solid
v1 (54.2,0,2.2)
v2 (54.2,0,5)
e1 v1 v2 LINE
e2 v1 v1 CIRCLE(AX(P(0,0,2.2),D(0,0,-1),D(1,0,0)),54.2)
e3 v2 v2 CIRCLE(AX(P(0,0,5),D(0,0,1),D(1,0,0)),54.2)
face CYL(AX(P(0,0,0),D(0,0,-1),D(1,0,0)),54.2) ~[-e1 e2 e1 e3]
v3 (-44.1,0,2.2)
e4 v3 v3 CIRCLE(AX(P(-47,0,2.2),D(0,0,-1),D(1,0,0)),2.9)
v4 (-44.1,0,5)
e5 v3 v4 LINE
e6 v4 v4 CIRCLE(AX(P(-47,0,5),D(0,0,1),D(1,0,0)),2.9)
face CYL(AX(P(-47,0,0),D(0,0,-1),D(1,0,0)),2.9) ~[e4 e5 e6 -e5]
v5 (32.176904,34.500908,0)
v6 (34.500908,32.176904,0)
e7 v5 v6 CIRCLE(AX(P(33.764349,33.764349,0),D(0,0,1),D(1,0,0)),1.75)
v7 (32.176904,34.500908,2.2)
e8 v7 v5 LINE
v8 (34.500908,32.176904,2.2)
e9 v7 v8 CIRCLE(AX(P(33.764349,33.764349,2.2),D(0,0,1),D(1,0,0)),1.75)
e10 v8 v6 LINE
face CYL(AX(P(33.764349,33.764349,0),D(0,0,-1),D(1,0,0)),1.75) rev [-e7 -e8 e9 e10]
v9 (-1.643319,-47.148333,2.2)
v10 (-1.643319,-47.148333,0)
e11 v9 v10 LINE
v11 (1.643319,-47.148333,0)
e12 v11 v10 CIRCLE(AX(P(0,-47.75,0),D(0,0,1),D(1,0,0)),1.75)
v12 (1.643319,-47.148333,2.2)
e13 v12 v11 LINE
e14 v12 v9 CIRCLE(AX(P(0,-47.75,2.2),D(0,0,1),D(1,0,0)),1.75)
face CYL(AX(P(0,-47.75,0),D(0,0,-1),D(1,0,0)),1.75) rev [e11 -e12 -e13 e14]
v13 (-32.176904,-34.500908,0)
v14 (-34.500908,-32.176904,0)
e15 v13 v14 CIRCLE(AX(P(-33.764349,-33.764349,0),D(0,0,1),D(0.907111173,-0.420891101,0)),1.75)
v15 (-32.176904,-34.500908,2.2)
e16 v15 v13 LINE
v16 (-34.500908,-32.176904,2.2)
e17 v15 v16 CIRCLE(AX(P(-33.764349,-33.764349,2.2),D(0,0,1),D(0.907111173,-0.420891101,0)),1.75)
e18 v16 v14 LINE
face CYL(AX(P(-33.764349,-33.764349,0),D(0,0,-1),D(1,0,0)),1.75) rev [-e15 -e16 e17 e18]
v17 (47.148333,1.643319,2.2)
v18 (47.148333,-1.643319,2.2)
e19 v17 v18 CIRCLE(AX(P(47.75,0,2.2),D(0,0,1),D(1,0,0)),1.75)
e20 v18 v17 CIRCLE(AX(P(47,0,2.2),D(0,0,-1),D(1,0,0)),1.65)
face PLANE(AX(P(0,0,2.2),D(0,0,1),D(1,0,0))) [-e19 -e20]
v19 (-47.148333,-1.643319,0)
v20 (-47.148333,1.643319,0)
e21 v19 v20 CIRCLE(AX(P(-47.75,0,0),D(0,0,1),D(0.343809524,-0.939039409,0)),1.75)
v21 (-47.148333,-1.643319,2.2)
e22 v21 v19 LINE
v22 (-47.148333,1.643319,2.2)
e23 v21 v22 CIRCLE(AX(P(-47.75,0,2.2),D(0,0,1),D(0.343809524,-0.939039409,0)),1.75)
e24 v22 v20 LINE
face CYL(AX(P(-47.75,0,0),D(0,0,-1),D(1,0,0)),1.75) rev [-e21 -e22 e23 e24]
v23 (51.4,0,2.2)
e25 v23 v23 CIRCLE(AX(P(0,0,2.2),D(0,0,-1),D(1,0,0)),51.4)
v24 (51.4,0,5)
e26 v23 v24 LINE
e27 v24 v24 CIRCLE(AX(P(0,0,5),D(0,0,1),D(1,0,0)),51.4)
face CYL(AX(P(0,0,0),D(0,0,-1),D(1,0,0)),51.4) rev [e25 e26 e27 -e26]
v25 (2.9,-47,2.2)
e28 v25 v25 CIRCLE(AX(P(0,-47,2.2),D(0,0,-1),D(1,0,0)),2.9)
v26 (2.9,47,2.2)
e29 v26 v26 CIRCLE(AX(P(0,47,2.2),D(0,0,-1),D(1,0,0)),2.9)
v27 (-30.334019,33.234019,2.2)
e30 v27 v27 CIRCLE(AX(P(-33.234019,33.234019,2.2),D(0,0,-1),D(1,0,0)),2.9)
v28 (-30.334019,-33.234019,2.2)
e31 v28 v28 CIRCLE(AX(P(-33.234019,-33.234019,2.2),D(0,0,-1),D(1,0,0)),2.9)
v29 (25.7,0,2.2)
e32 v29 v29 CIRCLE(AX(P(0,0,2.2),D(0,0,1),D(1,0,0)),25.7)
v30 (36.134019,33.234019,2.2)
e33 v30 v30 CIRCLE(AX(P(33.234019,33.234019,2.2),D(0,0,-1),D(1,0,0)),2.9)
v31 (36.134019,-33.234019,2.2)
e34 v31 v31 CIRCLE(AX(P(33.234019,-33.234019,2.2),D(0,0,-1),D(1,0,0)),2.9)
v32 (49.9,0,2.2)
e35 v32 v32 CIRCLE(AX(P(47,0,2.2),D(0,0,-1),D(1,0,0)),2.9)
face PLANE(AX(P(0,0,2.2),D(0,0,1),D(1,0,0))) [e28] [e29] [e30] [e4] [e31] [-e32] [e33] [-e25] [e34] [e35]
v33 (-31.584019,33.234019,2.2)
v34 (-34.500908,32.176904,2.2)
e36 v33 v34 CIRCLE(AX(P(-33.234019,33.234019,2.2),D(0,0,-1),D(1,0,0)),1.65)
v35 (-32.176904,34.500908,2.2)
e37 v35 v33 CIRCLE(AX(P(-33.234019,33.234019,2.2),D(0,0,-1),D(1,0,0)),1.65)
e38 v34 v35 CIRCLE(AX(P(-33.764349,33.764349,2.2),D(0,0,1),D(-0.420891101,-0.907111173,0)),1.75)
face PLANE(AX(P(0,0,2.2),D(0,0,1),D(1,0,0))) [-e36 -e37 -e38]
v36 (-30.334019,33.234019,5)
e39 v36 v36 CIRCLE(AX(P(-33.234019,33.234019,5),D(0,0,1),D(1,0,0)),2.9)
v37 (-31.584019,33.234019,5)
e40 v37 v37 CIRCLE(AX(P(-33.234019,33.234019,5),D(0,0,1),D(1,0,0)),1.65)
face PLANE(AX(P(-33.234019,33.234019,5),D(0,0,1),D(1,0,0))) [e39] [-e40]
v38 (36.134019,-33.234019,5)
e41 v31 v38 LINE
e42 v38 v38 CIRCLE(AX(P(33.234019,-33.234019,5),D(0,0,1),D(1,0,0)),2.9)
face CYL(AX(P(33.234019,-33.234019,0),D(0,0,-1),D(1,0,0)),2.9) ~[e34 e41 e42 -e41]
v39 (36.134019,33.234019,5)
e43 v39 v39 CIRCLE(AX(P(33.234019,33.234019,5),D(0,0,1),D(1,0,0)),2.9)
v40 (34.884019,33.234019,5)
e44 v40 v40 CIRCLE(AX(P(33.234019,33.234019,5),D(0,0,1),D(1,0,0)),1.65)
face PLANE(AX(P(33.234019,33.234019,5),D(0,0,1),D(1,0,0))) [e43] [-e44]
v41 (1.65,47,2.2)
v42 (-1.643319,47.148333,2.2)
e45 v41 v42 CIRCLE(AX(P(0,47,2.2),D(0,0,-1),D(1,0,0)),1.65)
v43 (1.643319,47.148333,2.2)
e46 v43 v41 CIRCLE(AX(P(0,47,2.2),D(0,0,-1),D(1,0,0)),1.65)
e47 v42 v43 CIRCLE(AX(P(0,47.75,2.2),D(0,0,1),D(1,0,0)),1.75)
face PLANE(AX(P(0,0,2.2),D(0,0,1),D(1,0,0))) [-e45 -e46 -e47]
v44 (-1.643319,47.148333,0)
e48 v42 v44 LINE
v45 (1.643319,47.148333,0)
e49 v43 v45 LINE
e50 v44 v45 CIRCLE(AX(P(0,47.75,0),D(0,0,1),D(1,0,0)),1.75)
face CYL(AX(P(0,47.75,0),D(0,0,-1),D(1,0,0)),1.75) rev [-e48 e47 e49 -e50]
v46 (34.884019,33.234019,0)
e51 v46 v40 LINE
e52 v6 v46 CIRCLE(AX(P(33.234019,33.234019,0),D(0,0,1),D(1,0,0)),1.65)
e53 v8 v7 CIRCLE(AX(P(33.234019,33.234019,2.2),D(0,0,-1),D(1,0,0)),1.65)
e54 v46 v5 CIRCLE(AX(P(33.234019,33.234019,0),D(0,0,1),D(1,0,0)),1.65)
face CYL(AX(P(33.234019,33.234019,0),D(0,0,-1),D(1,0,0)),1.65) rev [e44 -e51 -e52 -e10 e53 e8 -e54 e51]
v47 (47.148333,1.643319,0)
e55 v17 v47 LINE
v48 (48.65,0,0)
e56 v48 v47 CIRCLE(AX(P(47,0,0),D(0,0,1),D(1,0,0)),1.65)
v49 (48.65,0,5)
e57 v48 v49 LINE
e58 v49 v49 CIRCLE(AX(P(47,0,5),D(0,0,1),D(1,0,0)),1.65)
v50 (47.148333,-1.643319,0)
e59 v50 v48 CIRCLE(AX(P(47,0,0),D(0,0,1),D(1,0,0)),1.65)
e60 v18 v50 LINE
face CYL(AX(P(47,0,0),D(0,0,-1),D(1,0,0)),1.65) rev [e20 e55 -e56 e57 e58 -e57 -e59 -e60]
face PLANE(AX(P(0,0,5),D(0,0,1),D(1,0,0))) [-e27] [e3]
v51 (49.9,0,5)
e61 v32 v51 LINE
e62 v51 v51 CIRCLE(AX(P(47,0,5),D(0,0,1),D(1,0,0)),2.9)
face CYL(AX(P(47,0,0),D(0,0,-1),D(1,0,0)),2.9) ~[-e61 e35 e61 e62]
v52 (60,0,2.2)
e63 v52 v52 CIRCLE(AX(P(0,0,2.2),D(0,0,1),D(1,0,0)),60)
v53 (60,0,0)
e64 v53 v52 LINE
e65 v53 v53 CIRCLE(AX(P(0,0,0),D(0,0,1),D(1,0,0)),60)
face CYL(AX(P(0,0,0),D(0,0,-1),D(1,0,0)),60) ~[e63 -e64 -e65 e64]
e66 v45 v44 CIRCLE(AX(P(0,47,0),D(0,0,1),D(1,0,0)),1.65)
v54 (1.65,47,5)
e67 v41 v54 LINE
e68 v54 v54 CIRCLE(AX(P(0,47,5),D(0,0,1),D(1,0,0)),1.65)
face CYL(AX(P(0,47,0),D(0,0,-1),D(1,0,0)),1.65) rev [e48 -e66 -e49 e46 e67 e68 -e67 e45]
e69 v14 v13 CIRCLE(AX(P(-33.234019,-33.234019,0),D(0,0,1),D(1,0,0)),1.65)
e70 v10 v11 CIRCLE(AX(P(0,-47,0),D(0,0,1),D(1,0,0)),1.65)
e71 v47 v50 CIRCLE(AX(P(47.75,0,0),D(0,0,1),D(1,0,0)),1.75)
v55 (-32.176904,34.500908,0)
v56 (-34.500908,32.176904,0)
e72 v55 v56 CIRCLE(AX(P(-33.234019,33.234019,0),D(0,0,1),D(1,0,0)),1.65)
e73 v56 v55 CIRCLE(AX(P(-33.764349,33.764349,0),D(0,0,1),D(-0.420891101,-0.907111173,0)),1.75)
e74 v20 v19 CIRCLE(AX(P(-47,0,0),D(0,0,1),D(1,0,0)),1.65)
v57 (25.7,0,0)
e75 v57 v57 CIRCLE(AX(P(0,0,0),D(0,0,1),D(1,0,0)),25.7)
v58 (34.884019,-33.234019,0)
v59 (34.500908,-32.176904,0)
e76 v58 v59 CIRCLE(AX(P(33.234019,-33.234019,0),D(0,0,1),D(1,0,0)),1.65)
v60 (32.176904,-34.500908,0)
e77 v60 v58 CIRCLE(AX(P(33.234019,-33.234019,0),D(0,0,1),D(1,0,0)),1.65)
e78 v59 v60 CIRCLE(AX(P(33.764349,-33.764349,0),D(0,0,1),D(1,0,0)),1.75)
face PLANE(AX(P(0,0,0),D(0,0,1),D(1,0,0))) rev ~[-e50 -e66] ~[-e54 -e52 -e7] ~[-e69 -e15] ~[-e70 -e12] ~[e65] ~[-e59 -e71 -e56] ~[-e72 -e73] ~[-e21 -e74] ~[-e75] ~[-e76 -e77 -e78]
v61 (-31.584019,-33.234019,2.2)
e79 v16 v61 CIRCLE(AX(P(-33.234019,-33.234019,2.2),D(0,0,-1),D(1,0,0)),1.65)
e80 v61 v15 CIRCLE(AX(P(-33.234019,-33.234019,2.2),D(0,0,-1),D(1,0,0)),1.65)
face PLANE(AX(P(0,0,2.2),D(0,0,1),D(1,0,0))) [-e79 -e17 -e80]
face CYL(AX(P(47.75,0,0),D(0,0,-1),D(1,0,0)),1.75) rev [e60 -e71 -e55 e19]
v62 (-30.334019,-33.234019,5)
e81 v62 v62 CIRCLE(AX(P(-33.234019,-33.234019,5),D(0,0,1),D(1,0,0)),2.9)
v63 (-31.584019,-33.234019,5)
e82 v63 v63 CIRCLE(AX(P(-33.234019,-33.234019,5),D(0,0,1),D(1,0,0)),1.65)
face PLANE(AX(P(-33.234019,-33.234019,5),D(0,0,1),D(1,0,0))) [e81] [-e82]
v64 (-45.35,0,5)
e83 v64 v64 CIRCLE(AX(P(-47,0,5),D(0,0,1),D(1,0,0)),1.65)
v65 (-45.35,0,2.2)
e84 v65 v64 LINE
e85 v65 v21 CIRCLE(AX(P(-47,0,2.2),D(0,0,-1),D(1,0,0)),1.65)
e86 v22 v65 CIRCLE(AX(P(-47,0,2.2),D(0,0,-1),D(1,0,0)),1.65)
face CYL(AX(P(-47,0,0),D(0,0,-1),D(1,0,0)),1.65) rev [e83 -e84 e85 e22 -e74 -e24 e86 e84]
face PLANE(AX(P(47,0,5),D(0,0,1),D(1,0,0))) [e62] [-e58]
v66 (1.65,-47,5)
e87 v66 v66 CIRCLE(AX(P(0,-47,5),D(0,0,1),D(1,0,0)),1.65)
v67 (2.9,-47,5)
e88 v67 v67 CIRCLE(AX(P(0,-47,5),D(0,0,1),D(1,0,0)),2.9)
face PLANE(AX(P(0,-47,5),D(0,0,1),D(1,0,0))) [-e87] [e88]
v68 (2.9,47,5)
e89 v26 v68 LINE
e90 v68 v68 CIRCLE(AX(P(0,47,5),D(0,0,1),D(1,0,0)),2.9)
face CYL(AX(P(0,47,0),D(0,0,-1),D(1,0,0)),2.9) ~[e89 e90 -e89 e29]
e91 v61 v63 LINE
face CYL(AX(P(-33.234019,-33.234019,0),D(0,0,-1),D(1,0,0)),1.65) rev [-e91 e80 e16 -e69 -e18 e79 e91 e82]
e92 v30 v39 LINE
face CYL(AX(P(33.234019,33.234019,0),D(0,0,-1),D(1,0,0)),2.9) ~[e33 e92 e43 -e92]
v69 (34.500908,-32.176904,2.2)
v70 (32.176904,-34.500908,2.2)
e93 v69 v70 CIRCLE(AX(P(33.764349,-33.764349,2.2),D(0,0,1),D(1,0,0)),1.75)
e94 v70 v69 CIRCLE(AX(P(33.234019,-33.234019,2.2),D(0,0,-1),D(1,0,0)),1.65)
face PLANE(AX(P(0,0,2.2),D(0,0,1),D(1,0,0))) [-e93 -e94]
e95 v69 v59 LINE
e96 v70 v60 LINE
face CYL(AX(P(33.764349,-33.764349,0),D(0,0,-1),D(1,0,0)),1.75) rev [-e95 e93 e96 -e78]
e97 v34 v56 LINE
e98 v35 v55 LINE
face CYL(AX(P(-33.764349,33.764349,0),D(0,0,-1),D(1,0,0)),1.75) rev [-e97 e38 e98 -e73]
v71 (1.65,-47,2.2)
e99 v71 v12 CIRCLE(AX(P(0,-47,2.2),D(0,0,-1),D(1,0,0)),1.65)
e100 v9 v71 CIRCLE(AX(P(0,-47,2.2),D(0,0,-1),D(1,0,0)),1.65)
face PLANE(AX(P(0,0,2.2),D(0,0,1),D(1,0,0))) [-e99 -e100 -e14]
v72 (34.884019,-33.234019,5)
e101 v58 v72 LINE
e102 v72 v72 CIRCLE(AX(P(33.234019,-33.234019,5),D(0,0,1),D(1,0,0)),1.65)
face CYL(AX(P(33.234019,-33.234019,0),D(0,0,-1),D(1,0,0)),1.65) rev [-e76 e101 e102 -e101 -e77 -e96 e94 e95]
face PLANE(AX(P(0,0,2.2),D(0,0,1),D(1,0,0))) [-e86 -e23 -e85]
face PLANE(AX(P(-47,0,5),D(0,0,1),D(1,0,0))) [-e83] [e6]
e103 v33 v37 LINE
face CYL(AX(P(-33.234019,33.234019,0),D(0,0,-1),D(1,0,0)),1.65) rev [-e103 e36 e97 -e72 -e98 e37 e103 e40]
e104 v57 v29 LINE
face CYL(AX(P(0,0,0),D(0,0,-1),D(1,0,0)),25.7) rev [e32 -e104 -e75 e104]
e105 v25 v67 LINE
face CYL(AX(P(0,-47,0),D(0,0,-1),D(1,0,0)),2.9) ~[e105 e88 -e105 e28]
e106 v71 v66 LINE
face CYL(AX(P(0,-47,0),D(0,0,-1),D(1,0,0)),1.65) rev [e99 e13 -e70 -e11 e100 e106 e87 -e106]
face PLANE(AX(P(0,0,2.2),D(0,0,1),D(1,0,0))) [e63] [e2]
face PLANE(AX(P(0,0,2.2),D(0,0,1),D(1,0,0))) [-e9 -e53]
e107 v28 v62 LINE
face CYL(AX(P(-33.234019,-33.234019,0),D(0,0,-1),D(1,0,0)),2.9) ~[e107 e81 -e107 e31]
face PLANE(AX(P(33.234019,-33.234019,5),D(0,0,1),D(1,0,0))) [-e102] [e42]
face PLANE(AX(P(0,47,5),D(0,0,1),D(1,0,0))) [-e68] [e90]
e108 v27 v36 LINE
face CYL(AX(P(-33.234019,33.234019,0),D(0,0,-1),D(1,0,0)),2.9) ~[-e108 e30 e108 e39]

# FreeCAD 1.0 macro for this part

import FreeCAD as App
import Part
import Sketcher
Q = App.Units.Quantity

doc = App.newDocument("Part")
body = doc.addObject("PartDesign::Body", "Body")

sketch1 = doc.addObject("Sketcher::SketchObject", "Sketch")
body.addObject(sketch1)
sketch1.AttachmentSupport = (doc.XY_Plane, [""])
sketch1.MapMode = "FlatFace"
sketch1.addGeometry([
    Part.Circle(App.Vector(0, 0, 0), App.Vector(0, 0, 1), 60),
    Part.Circle(App.Vector(-33.8, -33.8, 0), App.Vector(0, 0, 1), 1.8),
    Part.Circle(App.Vector(0, -47.8, 0), App.Vector(0, 0, 1), 1.8),
    Part.Circle(App.Vector(33.8, -33.8, 0), App.Vector(0, 0, 1), 1.8),
    Part.Circle(App.Vector(-47.8, 0, 0), App.Vector(0, 0, 1), 1.8),
    Part.Circle(App.Vector(-33.8, 33.8, 0), App.Vector(0, 0, 1), 1.8),
    Part.Circle(App.Vector(0, 0, 0), App.Vector(0, 0, 1), 25.7),
    Part.Circle(App.Vector(47.8, 0, 0), App.Vector(0, 0, 1), 1.8),
    Part.Circle(App.Vector(0, 47.8, 0), App.Vector(0, 0, 1), 1.8),
    Part.Circle(App.Vector(33.8, 33.8, 0), App.Vector(0, 0, 1), 1.8),
], False)
sketch1.addConstraint([
    Sketcher.Constraint("Coincident", 0, 3, -1, 1),
    Sketcher.Constraint("Coincident", 6, 3, -1, 1),
    Sketcher.Constraint("Equal", 1, 2),
    Sketcher.Constraint("Equal", 2, 3),
    Sketcher.Constraint("Equal", 3, 4),
    Sketcher.Constraint("Equal", 4, 5),
    Sketcher.Constraint("Equal", 5, 7),
    Sketcher.Constraint("Equal", 7, 8),
    Sketcher.Constraint("Equal", 8, 9),
    Sketcher.Constraint("Symmetric", 3, 3, 5, 3, -1, 1),
    Sketcher.Constraint("Symmetric", 4, 3, 7, 3, -1, 1),
    Sketcher.Constraint("Symmetric", 2, 3, 8, 3, -1, 1),
    Sketcher.Constraint("Symmetric", 1, 3, 9, 3, -1, 1),
    Sketcher.Constraint("Symmetric", 1, 3, 3, 3, -2),
    Sketcher.Constraint("PointOnObject", 2, 3, -2),
    Sketcher.Constraint("PointOnObject", 4, 3, -1),
    Sketcher.Constraint("Diameter", 0, Q("120 mm")),
    Sketcher.Constraint("Diameter", 1, Q("3.5 mm")),
    Sketcher.Constraint("Diameter", 6, Q("51.4 mm")),
    Sketcher.Constraint("DistanceY", 2, 3, -1, 1, Q("47.75 mm")),
    Sketcher.Constraint("DistanceX", 4, 3, -1, 1, Q("47.75 mm")),
    Sketcher.Constraint("DistanceX", 1, 3, 3, 3, Q("67.528698 mm")),
    Sketcher.Constraint("DistanceY", 1, 3, 5, 3, Q("67.528698 mm")),
])
pad1 = doc.addObject("PartDesign::Pad", "Pad")
body.addObject(pad1)
pad1.Profile = sketch1
pad1.Length = 2.2

sketch2 = doc.addObject("Sketcher::SketchObject", "Sketch001")
body.addObject(sketch2)
sketch2.AttachmentSupport = (doc.XY_Plane, [""])
sketch2.MapMode = "FlatFace"
sketch2.addGeometry([
    Part.Circle(App.Vector(0, 0, 0), App.Vector(0, 0, 1), 54.2),
    Part.Circle(App.Vector(0, 0, 0), App.Vector(0, 0, 1), 51.4),
    Part.Circle(App.Vector(0, 47, 0), App.Vector(0, 0, 1), 2.9),
    Part.Circle(App.Vector(0, 47, 0), App.Vector(0, 0, 1), 1.6),
    Part.Circle(App.Vector(33.2, 33.2, 0), App.Vector(0, 0, 1), 2.9),
    Part.Circle(App.Vector(33.2, 33.2, 0), App.Vector(0, 0, 1), 1.6),
    Part.Circle(App.Vector(47, 0, 0), App.Vector(0, 0, 1), 2.9),
    Part.Circle(App.Vector(47, 0, 0), App.Vector(0, 0, 1), 1.6),
    Part.Circle(App.Vector(33.2, -33.2, 0), App.Vector(0, 0, 1), 2.9),
    Part.Circle(App.Vector(33.2, -33.2, 0), App.Vector(0, 0, 1), 1.6),
    Part.Circle(App.Vector(0, -47, 0), App.Vector(0, 0, 1), 2.9),
    Part.Circle(App.Vector(0, -47, 0), App.Vector(0, 0, 1), 1.6),
    Part.Circle(App.Vector(-33.2, -33.2, 0), App.Vector(0, 0, 1), 2.9),
    Part.Circle(App.Vector(-33.2, -33.2, 0), App.Vector(0, 0, 1), 1.6),
    Part.Circle(App.Vector(-47, 0, 0), App.Vector(0, 0, 1), 2.9),
    Part.Circle(App.Vector(-47, 0, 0), App.Vector(0, 0, 1), 1.6),
    Part.Circle(App.Vector(-33.2, 33.2, 0), App.Vector(0, 0, 1), 2.9),
    Part.Circle(App.Vector(-33.2, 33.2, 0), App.Vector(0, 0, 1), 1.6),
], False)
sketch2.addConstraint([
    Sketcher.Constraint("Coincident", 0, 3, -1, 1),
    Sketcher.Constraint("Coincident", 1, 3, -1, 1),
    Sketcher.Constraint("Coincident", 3, 3, 2, 3),
    Sketcher.Constraint("Coincident", 5, 3, 4, 3),
    Sketcher.Constraint("Coincident", 7, 3, 6, 3),
    Sketcher.Constraint("Coincident", 9, 3, 8, 3),
    Sketcher.Constraint("Coincident", 11, 3, 10, 3),
    Sketcher.Constraint("Coincident", 13, 3, 12, 3),
    Sketcher.Constraint("Coincident", 15, 3, 14, 3),
    Sketcher.Constraint("Coincident", 17, 3, 16, 3),
    Sketcher.Constraint("Equal", 2, 4),
    Sketcher.Constraint("Equal", 3, 5),
    Sketcher.Constraint("Equal", 4, 6),
    Sketcher.Constraint("Equal", 5, 7),
    Sketcher.Constraint("Equal", 6, 8),
    Sketcher.Constraint("Equal", 7, 9),
    Sketcher.Constraint("Equal", 8, 10),
    Sketcher.Constraint("Equal", 9, 11),
    Sketcher.Constraint("Equal", 10, 12),
    Sketcher.Constraint("Equal", 11, 13),
    Sketcher.Constraint("Equal", 12, 14),
    Sketcher.Constraint("Equal", 13, 15),
    Sketcher.Constraint("Equal", 14, 16),
    Sketcher.Constraint("Equal", 15, 17),
    Sketcher.Constraint("Symmetric", 2, 3, 10, 3, -1, 1),
    Sketcher.Constraint("Symmetric", 4, 3, 12, 3, -1, 1),
    Sketcher.Constraint("Symmetric", 6, 3, 14, 3, -1, 1),
    Sketcher.Constraint("Symmetric", 8, 3, 16, 3, -1, 1),
    Sketcher.Constraint("Symmetric", 8, 3, 12, 3, -2),
    Sketcher.Constraint("PointOnObject", 2, 3, -2),
    Sketcher.Constraint("PointOnObject", 6, 3, -1),
    Sketcher.Constraint("Diameter", 0, Q("108.4 mm")),
    Sketcher.Constraint("Diameter", 1, Q("102.8 mm")),
    Sketcher.Constraint("Diameter", 2, Q("5.8 mm")),
    Sketcher.Constraint("Diameter", 3, Q("3.3 mm")),
    Sketcher.Constraint("DistanceY", -1, 1, 2, 3, Q("47 mm")),
    Sketcher.Constraint("DistanceX", -1, 1, 6, 3, Q("47 mm")),
    Sketcher.Constraint("DistanceX", -1, 1, 4, 3, Q("33.234019 mm")),
    Sketcher.Constraint("DistanceY", -1, 1, 4, 3, Q("33.234019 mm")),
])
pad2 = doc.addObject("PartDesign::Pad", "Pad001")
body.addObject(pad2)
pad2.Profile = sketch2
pad2.Length = 5

doc.recompute()
